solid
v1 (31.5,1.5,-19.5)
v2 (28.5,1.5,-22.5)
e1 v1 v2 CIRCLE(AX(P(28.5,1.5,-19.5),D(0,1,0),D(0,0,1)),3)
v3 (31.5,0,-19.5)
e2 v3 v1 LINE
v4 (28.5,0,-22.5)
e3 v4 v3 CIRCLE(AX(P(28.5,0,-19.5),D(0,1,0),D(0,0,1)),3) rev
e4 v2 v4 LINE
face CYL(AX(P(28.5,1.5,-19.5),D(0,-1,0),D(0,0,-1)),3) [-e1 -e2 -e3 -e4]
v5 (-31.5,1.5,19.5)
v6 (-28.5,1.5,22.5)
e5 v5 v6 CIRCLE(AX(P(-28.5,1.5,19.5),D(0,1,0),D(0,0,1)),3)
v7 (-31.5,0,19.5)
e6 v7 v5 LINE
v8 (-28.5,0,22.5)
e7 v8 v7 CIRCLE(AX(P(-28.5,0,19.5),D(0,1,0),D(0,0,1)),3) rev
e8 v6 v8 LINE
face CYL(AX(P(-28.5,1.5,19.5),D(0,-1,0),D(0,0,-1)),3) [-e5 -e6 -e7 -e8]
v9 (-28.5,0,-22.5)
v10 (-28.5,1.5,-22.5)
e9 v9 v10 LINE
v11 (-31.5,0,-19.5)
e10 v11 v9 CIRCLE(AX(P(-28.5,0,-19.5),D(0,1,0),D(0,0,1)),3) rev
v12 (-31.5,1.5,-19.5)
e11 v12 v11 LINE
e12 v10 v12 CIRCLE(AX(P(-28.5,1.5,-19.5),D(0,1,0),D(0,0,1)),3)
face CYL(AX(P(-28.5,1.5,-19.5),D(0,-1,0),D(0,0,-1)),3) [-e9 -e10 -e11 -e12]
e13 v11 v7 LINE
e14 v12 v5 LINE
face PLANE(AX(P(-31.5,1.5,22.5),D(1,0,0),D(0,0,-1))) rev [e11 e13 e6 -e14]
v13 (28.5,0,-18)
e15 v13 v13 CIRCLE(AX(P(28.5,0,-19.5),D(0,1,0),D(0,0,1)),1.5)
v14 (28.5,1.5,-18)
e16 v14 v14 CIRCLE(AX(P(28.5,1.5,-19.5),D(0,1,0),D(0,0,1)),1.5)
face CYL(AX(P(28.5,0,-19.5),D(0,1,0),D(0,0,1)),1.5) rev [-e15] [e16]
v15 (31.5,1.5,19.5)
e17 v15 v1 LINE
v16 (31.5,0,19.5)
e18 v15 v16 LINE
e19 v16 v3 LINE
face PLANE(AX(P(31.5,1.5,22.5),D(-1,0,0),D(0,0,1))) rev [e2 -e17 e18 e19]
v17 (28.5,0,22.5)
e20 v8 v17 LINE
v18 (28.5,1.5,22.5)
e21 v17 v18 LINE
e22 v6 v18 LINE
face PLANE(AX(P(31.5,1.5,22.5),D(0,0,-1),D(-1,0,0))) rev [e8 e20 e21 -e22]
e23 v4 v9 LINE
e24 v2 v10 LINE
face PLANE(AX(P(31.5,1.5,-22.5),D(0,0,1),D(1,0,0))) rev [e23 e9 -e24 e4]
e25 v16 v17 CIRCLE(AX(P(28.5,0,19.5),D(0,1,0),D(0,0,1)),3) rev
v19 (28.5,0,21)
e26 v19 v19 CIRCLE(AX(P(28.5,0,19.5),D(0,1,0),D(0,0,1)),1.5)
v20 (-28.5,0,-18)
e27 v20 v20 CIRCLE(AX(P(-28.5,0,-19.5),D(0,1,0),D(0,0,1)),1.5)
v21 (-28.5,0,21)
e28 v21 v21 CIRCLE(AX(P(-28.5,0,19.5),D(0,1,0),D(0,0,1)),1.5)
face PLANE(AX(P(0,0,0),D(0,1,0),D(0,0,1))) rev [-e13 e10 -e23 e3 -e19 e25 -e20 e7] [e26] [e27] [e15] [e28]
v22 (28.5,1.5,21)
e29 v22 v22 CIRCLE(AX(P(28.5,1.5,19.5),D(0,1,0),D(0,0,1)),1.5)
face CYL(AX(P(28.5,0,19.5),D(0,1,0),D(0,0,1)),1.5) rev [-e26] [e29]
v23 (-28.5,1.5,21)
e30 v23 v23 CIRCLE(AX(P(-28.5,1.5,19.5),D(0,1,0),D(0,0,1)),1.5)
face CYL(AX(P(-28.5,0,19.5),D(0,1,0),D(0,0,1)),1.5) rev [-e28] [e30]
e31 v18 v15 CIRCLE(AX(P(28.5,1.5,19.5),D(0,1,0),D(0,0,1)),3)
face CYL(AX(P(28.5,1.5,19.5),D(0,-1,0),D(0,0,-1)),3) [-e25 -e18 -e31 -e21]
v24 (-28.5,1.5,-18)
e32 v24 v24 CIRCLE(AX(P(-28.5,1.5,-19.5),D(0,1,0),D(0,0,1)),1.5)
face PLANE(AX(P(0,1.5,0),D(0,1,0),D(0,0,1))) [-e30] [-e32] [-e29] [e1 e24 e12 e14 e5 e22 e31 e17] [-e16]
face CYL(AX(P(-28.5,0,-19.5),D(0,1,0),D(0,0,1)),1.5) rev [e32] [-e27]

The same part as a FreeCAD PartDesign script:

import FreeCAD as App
import Part
import Sketcher
Q = App.Units.Quantity


def edges_at(feature, points):
    """Names of the edges that pass closest to the given points."""
    edges = feature.Shape.Edges
    near = lambda p: min(range(len(edges)), key=lambda i: edges[i].distToShape(Part.Vertex(*p))[0])
    return sorted({f"Edge{near(p) + 1}" for p in points})


def add_polygon(sketch, points):
    """Adds a closed chain of lines whose ends are joined by coincident constraints."""
    first, n = sketch.GeometryCount, len(points)
    for a, b in zip(points, points[1:] + points[:1]):
        sketch.addGeometry(Part.LineSegment(App.Vector(*a, 0), App.Vector(*b, 0)), False)
    for i in range(n):
        sketch.addConstraint(Sketcher.Constraint("Coincident", first + i, 2, first + (i + 1) % n, 1))

doc = App.newDocument("Part")
params = doc.addObject("Spreadsheet::Sheet", "Params")
for row, (alias, value) in enumerate([
    ("sketch1_width", "63 mm"),
    ("sketch1_height", "45 mm"),
    ("pad1_length", "1.5 mm"),
    ("fillet_radius", "3 mm"),
    ("sketch2_diameter", "3 mm"),
], start=1):
    params.set(f"A{row}", alias)
    params.set(f"B{row}", "=" + value)
    params.setAlias(f"B{row}", alias)

body = doc.addObject("PartDesign::Body", "Body")

sketch1 = body.newObject("Sketcher::SketchObject", "Sketch")
sketch1.AttachmentSupport = (doc.getObject("XZ_Plane"), [""])
sketch1.MapMode = "FlatFace"
add_polygon(sketch1, [(-32, -22), (-32, 22), (32, 22), (32, -22)])
sketch1.addConstraint([
    Sketcher.Constraint("Vertical", 0),
    Sketcher.Constraint("Horizontal", 1),
    Sketcher.Constraint("Vertical", 2),
    Sketcher.Constraint("Horizontal", 3),
    Sketcher.Constraint("Symmetric", 0, 2, 2, 2, -1, 1),
    Sketcher.Constraint("DistanceX", 1, 1, 1, 2, Q("63 mm")),
    Sketcher.Constraint("DistanceY", 0, 1, 0, 2, Q("45 mm")),
])
sketch1.setExpression("Constraints[9]", "Params.sketch1_width")
sketch1.setExpression("Constraints[10]", "Params.sketch1_height")
pad1 = body.newObject("PartDesign::Pad", "Pad")
pad1.Profile = sketch1
pad1.setExpression("Length", "Params.pad1_length")
pad1.Reversed = True
doc.recompute()

fillet = body.newObject("PartDesign::Fillet", "Fillet")
fillet.Base = (pad1, edges_at(pad1, [
    (-31.5, 0.75, -22.5),
    (31.5, 0.75, -22.5),
    (31.5, 0.75, 22.5),
    (-31.5, 0.75, 22.5),
]))
fillet.setExpression("Radius", "Params.fillet_radius")

sketch2 = body.newObject("Sketcher::SketchObject", "Sketch001")
sketch2.AttachmentSupport = (doc.getObject("XZ_Plane"), [""])
sketch2.MapMode = "FlatFace"
sketch2.AttachmentOffset = App.Placement(App.Vector(0, 0, -1.5), App.Rotation())
sketch2.addGeometry([
    Part.Circle(App.Vector(-28.5, -19.5, 0), App.Vector(0, 0, 1), 1.5),
    Part.Circle(App.Vector(28.5, -19.5, 0), App.Vector(0, 0, 1), 1.5),
    Part.Circle(App.Vector(28.5, 19.5, 0), App.Vector(0, 0, 1), 1.5),
    Part.Circle(App.Vector(-28.5, 19.5, 0), App.Vector(0, 0, 1), 1.5),
], False)
sketch2.addConstraint([
    Sketcher.Constraint("Equal", 0, 1),
    Sketcher.Constraint("Equal", 1, 2),
    Sketcher.Constraint("Equal", 2, 3),
    Sketcher.Constraint("Symmetric", 0, 3, 2, 3, -1, 1),
    Sketcher.Constraint("Symmetric", 1, 3, 3, 3, -1, 1),
    Sketcher.Constraint("Symmetric", 0, 3, 1, 3, -2),
    Sketcher.Constraint("Diameter", 0, Q("3 mm")),
    Sketcher.Constraint("DistanceX", 0, 3, 1, 3, Q("57 mm")),
    Sketcher.Constraint("DistanceY", 1, 3, 2, 3, Q("39 mm")),
])
sketch2.setExpression("Constraints[6]", "Params.sketch2_diameter")
pocket1 = body.newObject("PartDesign::Pocket", "Pocket")
pocket1.Profile = sketch2
pocket1.Type = "ThroughAll"
pocket1.Reversed = True

doc.recompute()
